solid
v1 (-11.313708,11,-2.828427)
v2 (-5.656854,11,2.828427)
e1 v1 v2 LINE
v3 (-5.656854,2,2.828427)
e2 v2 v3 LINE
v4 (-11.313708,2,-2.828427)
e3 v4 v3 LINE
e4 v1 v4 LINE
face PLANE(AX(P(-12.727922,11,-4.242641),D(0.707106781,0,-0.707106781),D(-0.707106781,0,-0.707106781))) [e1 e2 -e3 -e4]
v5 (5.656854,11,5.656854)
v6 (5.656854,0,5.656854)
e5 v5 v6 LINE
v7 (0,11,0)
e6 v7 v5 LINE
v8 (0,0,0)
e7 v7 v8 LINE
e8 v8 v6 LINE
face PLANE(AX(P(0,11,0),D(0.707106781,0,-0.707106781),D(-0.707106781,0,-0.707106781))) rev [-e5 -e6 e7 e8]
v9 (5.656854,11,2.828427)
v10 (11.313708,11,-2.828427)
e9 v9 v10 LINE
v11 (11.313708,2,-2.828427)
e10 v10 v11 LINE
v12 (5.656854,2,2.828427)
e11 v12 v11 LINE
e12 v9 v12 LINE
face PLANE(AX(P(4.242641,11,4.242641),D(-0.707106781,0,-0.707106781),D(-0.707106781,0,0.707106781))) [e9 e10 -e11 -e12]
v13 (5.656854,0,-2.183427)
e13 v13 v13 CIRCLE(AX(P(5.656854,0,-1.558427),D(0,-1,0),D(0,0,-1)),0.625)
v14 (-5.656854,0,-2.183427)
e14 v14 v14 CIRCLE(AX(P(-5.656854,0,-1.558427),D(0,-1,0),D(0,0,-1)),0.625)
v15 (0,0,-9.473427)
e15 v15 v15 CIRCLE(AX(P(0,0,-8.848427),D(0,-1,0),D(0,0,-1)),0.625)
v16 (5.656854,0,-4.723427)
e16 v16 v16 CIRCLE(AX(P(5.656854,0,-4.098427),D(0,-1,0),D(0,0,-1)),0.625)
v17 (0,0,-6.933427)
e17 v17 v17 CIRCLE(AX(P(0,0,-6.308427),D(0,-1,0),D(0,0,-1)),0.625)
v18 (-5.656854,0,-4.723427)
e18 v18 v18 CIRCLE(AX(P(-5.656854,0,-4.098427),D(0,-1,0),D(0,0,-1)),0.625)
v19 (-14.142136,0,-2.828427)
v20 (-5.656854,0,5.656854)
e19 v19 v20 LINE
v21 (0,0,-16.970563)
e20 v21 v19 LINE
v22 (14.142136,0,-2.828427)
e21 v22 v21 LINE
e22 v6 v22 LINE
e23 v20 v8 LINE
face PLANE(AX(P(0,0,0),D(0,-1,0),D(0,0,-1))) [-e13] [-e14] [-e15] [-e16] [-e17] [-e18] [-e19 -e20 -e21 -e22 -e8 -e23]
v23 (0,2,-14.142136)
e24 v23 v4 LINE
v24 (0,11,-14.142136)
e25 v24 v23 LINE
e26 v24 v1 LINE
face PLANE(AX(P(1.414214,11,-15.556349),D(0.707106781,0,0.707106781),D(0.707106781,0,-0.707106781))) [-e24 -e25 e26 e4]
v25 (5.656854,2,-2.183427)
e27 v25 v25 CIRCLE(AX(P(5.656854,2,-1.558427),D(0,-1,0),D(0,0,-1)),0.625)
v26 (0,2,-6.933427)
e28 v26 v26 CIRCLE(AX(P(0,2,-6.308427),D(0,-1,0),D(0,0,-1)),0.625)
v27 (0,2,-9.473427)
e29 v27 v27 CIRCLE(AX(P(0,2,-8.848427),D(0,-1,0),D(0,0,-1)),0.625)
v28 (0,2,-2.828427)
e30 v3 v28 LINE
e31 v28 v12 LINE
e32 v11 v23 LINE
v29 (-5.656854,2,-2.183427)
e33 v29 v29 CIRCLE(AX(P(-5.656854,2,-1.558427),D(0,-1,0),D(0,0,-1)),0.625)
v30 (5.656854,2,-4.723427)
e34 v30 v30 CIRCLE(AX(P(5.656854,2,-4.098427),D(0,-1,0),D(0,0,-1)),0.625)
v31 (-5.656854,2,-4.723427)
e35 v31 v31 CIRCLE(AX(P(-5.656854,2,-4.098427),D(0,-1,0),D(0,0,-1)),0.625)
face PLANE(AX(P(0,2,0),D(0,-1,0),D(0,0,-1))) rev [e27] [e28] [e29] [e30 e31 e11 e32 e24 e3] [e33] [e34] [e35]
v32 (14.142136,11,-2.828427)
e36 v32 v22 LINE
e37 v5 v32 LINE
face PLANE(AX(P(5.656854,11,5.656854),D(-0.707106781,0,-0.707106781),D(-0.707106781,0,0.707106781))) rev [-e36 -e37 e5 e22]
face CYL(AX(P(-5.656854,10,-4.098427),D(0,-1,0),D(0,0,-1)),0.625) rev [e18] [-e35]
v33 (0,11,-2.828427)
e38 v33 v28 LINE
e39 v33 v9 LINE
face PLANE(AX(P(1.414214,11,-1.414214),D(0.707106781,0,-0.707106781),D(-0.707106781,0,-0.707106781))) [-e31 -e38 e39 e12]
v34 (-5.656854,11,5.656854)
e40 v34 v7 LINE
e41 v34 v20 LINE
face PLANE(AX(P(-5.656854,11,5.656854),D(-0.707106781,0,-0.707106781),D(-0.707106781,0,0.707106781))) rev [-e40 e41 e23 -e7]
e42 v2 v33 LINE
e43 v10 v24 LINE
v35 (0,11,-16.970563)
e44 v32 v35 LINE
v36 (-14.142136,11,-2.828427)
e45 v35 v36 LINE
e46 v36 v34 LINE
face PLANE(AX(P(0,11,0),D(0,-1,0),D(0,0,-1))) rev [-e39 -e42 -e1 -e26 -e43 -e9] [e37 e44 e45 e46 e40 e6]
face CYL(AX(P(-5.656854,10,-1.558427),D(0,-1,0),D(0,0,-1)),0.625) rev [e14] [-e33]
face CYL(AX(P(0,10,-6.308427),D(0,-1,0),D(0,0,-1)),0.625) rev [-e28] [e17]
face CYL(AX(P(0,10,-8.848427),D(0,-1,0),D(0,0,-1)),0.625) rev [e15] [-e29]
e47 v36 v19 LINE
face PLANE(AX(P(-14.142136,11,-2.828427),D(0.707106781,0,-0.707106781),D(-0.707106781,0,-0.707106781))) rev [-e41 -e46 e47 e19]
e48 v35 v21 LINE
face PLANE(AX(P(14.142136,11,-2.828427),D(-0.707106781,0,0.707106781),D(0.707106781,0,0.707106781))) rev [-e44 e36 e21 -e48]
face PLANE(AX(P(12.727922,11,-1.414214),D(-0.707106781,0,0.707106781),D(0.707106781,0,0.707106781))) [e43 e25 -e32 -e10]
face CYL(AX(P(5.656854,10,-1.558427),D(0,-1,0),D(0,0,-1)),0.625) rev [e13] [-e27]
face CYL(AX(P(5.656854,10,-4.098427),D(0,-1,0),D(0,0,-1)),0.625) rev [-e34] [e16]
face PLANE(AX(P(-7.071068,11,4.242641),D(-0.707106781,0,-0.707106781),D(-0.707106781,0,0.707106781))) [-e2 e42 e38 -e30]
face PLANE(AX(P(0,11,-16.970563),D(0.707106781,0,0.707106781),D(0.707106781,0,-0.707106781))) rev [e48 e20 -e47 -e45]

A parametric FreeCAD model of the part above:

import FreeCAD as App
import Part
import Sketcher


def faces_at(feature, points):
    """Names of the faces that lie closest to the given points."""
    faces = feature.Shape.Faces
    near = lambda p: min(range(len(faces)), key=lambda i: faces[i].distToShape(Part.Vertex(*p))[0])
    return sorted({f"Face{near(p) + 1}" for p in points})


def add_polygon(sketch, points):
    """Adds a closed chain of lines whose ends are joined by coincident constraints."""
    first, n = sketch.GeometryCount, len(points)
    for a, b in zip(points, points[1:] + points[:1]):
        sketch.addGeometry(Part.LineSegment(App.Vector(*a, 0), App.Vector(*b, 0)), False)
    for i in range(n):
        sketch.addConstraint(Sketcher.Constraint("Coincident", first + i, 2, first + (i + 1) % n, 1))

doc = App.newDocument("Part")
body = doc.addObject("PartDesign::Body", "Body")

# Sketch on XZ plane
sketch1 = body.newObject("Sketcher::SketchObject", "Sketch")
sketch1.AttachmentSupport = (doc.getObject("XZ_Plane"), [""])
sketch1.MapMode = "FlatFace"
add_polygon(sketch1, [(0, 0), (6, 6), (14, -3), (0, -17), (-14, -3), (-6, 6)])  # lines 0-5
sketch1.addConstraint([
    Sketcher.Constraint("Coincident", 5, 2, -1, 1),
    Sketcher.Constraint("Symmetric", 1, 2, 3, 2, -2),
    Sketcher.Constraint("Symmetric", 0, 2, 4, 2, -2),
    Sketcher.Constraint("PointOnObject", 2, 2, -2),
    Sketcher.Constraint("Perpendicular", 0, 1),
    Sketcher.Constraint("Perpendicular", 1, 2),
    Sketcher.Constraint("Perpendicular", 2, 3),
    Sketcher.Constraint("Distance", 0, 8.0),
    Sketcher.Constraint("Distance", 1, 12.0),
])
pad1 = body.newObject("PartDesign::Pad", "Pad")
pad1.Profile = sketch1
pad1.Length = 11
pad1.Reversed = True
doc.recompute()

thickness = body.newObject("PartDesign::Thickness", "Thickness")
thickness.Base = (pad1, faces_at(pad1, [(0, 11, -5.657)]))
thickness.Value = 2
thickness.Reversed = True
thickness.Join = "Intersection"

# Sketch on XZ plane
sketch2 = body.newObject("Sketcher::SketchObject", "Sketch001")
sketch2.AttachmentSupport = (doc.getObject("XZ_Plane"), [""])
sketch2.MapMode = "FlatFace"
sketch2.addGeometry([
    Part.Circle(App.Vector(-5.7, -1.6, 0), App.Vector(0, 0, 1), 0.6),  # 0
    Part.Circle(App.Vector(-5.7, -4.1, 0), App.Vector(0, 0, 1), 0.6),  # 1
    Part.Circle(App.Vector(0, -6.3, 0), App.Vector(0, 0, 1), 0.6),  # 2
    Part.Circle(App.Vector(0, -8.8, 0), App.Vector(0, 0, 1), 0.6),  # 3
    Part.Circle(App.Vector(5.7, -1.6, 0), App.Vector(0, 0, 1), 0.6),  # 4
    Part.Circle(App.Vector(5.7, -4.1, 0), App.Vector(0, 0, 1), 0.6),  # 5
], False)
sketch2.addConstraint([
    Sketcher.Constraint("Equal", 0, 1),
    Sketcher.Constraint("Equal", 1, 2),
    Sketcher.Constraint("Equal", 2, 3),
    Sketcher.Constraint("Equal", 3, 4),
    Sketcher.Constraint("Equal", 4, 5),
    Sketcher.Constraint("Symmetric", 0, 3, 4, 3, -2),
    Sketcher.Constraint("Symmetric", 1, 3, 5, 3, -2),
    Sketcher.Constraint("PointOnObject", 2, 3, -2),
    Sketcher.Constraint("PointOnObject", 3, 3, -2),
    Sketcher.Constraint("Vertical", 0, 3, 1, 3),
    Sketcher.Constraint("Diameter", 0, 1.25),
    Sketcher.Constraint("DistanceY", 1, 3, 0, 3, 2.54),
    Sketcher.Constraint("DistanceY", 2, 3, 1, 3, 2.21),
    Sketcher.Constraint("DistanceY", 3, 3, 2, 3, 2.54),
    Sketcher.Constraint("DistanceX", 0, 3, 4, 3, 11.313708),
    Sketcher.Constraint("DistanceY", 0, 3, -1, 1, 1.558427),
])
pocket1 = body.newObject("PartDesign::Pocket", "Pocket")
pocket1.Profile = sketch2
pocket1.Length = 10

doc.recompute()
